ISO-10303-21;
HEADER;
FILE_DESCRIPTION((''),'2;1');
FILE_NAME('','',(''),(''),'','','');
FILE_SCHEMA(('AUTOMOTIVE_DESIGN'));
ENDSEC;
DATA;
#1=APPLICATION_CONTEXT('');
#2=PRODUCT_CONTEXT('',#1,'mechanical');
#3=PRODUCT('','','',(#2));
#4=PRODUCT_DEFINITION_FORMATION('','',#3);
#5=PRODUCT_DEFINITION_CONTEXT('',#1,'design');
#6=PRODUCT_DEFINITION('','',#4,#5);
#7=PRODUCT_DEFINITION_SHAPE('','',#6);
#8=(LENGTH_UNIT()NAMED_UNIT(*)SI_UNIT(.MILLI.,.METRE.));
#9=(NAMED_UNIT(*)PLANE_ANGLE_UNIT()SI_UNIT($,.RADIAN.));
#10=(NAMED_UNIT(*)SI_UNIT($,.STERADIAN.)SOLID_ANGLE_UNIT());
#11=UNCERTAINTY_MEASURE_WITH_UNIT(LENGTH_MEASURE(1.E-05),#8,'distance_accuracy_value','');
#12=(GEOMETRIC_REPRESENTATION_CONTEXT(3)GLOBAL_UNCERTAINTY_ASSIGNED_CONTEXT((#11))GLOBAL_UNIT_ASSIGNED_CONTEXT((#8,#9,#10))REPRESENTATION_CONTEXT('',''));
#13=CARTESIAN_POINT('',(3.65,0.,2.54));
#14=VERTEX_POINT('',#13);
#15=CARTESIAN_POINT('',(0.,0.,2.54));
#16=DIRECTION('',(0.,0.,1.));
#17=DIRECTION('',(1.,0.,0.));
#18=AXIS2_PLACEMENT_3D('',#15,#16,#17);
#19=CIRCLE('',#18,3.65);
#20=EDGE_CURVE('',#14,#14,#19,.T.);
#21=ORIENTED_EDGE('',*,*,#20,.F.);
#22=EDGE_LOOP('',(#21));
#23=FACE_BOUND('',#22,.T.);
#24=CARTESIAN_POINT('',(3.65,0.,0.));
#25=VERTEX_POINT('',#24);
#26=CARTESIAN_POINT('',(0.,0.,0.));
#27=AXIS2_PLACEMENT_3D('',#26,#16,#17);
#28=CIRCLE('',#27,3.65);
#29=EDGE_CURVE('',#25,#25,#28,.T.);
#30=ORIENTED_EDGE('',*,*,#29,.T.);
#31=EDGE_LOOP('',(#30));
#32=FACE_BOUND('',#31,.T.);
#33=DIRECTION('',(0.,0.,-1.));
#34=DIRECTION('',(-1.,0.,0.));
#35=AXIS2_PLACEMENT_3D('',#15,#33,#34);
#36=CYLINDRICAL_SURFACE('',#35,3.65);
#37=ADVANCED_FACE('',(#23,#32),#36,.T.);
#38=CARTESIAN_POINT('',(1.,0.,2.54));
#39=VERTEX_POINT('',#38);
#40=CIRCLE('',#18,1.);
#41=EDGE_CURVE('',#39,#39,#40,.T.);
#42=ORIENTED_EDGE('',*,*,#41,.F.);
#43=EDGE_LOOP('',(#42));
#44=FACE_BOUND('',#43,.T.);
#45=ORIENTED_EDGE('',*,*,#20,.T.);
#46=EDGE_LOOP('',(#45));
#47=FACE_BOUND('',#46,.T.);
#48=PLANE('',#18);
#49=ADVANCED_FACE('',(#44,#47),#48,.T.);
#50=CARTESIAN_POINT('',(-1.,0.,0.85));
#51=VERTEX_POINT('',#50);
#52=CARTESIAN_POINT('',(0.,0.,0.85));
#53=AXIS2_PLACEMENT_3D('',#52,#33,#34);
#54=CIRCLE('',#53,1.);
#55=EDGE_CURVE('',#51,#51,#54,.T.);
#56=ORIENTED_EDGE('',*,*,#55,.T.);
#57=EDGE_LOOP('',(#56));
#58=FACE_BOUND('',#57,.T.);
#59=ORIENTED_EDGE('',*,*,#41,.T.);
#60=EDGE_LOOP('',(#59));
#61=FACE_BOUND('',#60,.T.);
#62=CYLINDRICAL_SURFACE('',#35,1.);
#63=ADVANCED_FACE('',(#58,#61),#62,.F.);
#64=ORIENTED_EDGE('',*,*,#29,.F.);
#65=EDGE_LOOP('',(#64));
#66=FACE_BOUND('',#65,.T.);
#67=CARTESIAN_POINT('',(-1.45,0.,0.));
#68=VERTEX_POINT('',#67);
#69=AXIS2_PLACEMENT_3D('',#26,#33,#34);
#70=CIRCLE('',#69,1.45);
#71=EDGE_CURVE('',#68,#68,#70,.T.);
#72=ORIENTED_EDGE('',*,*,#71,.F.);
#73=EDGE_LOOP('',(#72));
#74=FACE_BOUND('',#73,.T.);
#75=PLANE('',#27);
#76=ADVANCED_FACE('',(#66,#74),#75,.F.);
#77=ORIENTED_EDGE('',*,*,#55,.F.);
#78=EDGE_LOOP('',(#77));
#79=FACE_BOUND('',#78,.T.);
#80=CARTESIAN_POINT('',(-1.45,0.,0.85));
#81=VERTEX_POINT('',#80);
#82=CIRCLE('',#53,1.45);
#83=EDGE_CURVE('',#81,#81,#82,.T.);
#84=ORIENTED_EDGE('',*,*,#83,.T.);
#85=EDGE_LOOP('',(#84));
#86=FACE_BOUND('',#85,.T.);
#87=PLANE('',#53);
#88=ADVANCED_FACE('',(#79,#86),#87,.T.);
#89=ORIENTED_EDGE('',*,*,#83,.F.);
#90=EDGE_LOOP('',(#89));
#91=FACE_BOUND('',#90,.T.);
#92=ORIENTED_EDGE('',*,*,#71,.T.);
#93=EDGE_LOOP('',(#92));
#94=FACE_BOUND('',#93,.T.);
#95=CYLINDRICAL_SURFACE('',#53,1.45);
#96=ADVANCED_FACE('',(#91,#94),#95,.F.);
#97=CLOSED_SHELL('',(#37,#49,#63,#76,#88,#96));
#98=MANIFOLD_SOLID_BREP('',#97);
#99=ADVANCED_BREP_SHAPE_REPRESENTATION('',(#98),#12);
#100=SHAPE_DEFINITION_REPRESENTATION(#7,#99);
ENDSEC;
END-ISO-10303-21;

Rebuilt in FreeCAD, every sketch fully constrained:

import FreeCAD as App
import Part
import Sketcher
Q = App.Units.Quantity

doc = App.newDocument("Part")
params = doc.addObject("Spreadsheet::Sheet", "Params")
for row, (alias, value) in enumerate([
    ("sketch1_diameter", "2 mm"),
    ("sketch1_diameter2", "7.3 mm"),
    ("pad1_length", "2.54 mm"),
    ("sketch2_diameter", "2.9 mm"),
    ("pocket1_length", "0.85 mm"),
], start=1):
    params.set(f"A{row}", alias)
    params.set(f"B{row}", "=" + value)
    params.setAlias(f"B{row}", alias)

body = doc.addObject("PartDesign::Body", "Body")

# Sketch on XY plane
sketch1 = body.newObject("Sketcher::SketchObject", "Sketch")
sketch1.AttachmentSupport = (doc.getObject("XY_Plane"), [""])
sketch1.MapMode = "FlatFace"
sketch1.addGeometry([
    Part.Circle(App.Vector(0, 0, 0), App.Vector(0, 0, 1), 3.6),
    Part.Circle(App.Vector(0, 0, 0), App.Vector(0, 0, 1), 1),
], False)
sketch1.addConstraint([
    Sketcher.Constraint("Coincident", 0, 3, -1, 1),
    Sketcher.Constraint("Coincident", 1, 3, -1, 1),
    Sketcher.Constraint("Diameter", 1, Q("2 mm")),
    Sketcher.Constraint("Diameter", 0, Q("7.3 mm")),
])
sketch1.setExpression("Constraints[2]", "Params.sketch1_diameter")
sketch1.setExpression("Constraints[3]", "Params.sketch1_diameter2")
pad1 = body.newObject("PartDesign::Pad", "Pad")
pad1.Profile = sketch1
pad1.setExpression("Length", "Params.pad1_length")

# Sketch on XY plane
sketch2 = body.newObject("Sketcher::SketchObject", "Sketch001")
sketch2.AttachmentSupport = (doc.getObject("XY_Plane"), [""])
sketch2.MapMode = "FlatFace"
sketch2.addGeometry(Part.Circle(App.Vector(0, 0, 0), App.Vector(0, 0, 1), 1.4), False)
sketch2.addConstraint([
    Sketcher.Constraint("Coincident", 0, 3, -1, 1),
    Sketcher.Constraint("Diameter", 0, Q("2.9 mm")),
])
sketch2.setExpression("Constraints[1]", "Params.sketch2_diameter")
pocket1 = body.newObject("PartDesign::Pocket", "Pocket")
pocket1.Profile = sketch2
pocket1.setExpression("Length", "Params.pocket1_length")
pocket1.Reversed = True

doc.recompute()
